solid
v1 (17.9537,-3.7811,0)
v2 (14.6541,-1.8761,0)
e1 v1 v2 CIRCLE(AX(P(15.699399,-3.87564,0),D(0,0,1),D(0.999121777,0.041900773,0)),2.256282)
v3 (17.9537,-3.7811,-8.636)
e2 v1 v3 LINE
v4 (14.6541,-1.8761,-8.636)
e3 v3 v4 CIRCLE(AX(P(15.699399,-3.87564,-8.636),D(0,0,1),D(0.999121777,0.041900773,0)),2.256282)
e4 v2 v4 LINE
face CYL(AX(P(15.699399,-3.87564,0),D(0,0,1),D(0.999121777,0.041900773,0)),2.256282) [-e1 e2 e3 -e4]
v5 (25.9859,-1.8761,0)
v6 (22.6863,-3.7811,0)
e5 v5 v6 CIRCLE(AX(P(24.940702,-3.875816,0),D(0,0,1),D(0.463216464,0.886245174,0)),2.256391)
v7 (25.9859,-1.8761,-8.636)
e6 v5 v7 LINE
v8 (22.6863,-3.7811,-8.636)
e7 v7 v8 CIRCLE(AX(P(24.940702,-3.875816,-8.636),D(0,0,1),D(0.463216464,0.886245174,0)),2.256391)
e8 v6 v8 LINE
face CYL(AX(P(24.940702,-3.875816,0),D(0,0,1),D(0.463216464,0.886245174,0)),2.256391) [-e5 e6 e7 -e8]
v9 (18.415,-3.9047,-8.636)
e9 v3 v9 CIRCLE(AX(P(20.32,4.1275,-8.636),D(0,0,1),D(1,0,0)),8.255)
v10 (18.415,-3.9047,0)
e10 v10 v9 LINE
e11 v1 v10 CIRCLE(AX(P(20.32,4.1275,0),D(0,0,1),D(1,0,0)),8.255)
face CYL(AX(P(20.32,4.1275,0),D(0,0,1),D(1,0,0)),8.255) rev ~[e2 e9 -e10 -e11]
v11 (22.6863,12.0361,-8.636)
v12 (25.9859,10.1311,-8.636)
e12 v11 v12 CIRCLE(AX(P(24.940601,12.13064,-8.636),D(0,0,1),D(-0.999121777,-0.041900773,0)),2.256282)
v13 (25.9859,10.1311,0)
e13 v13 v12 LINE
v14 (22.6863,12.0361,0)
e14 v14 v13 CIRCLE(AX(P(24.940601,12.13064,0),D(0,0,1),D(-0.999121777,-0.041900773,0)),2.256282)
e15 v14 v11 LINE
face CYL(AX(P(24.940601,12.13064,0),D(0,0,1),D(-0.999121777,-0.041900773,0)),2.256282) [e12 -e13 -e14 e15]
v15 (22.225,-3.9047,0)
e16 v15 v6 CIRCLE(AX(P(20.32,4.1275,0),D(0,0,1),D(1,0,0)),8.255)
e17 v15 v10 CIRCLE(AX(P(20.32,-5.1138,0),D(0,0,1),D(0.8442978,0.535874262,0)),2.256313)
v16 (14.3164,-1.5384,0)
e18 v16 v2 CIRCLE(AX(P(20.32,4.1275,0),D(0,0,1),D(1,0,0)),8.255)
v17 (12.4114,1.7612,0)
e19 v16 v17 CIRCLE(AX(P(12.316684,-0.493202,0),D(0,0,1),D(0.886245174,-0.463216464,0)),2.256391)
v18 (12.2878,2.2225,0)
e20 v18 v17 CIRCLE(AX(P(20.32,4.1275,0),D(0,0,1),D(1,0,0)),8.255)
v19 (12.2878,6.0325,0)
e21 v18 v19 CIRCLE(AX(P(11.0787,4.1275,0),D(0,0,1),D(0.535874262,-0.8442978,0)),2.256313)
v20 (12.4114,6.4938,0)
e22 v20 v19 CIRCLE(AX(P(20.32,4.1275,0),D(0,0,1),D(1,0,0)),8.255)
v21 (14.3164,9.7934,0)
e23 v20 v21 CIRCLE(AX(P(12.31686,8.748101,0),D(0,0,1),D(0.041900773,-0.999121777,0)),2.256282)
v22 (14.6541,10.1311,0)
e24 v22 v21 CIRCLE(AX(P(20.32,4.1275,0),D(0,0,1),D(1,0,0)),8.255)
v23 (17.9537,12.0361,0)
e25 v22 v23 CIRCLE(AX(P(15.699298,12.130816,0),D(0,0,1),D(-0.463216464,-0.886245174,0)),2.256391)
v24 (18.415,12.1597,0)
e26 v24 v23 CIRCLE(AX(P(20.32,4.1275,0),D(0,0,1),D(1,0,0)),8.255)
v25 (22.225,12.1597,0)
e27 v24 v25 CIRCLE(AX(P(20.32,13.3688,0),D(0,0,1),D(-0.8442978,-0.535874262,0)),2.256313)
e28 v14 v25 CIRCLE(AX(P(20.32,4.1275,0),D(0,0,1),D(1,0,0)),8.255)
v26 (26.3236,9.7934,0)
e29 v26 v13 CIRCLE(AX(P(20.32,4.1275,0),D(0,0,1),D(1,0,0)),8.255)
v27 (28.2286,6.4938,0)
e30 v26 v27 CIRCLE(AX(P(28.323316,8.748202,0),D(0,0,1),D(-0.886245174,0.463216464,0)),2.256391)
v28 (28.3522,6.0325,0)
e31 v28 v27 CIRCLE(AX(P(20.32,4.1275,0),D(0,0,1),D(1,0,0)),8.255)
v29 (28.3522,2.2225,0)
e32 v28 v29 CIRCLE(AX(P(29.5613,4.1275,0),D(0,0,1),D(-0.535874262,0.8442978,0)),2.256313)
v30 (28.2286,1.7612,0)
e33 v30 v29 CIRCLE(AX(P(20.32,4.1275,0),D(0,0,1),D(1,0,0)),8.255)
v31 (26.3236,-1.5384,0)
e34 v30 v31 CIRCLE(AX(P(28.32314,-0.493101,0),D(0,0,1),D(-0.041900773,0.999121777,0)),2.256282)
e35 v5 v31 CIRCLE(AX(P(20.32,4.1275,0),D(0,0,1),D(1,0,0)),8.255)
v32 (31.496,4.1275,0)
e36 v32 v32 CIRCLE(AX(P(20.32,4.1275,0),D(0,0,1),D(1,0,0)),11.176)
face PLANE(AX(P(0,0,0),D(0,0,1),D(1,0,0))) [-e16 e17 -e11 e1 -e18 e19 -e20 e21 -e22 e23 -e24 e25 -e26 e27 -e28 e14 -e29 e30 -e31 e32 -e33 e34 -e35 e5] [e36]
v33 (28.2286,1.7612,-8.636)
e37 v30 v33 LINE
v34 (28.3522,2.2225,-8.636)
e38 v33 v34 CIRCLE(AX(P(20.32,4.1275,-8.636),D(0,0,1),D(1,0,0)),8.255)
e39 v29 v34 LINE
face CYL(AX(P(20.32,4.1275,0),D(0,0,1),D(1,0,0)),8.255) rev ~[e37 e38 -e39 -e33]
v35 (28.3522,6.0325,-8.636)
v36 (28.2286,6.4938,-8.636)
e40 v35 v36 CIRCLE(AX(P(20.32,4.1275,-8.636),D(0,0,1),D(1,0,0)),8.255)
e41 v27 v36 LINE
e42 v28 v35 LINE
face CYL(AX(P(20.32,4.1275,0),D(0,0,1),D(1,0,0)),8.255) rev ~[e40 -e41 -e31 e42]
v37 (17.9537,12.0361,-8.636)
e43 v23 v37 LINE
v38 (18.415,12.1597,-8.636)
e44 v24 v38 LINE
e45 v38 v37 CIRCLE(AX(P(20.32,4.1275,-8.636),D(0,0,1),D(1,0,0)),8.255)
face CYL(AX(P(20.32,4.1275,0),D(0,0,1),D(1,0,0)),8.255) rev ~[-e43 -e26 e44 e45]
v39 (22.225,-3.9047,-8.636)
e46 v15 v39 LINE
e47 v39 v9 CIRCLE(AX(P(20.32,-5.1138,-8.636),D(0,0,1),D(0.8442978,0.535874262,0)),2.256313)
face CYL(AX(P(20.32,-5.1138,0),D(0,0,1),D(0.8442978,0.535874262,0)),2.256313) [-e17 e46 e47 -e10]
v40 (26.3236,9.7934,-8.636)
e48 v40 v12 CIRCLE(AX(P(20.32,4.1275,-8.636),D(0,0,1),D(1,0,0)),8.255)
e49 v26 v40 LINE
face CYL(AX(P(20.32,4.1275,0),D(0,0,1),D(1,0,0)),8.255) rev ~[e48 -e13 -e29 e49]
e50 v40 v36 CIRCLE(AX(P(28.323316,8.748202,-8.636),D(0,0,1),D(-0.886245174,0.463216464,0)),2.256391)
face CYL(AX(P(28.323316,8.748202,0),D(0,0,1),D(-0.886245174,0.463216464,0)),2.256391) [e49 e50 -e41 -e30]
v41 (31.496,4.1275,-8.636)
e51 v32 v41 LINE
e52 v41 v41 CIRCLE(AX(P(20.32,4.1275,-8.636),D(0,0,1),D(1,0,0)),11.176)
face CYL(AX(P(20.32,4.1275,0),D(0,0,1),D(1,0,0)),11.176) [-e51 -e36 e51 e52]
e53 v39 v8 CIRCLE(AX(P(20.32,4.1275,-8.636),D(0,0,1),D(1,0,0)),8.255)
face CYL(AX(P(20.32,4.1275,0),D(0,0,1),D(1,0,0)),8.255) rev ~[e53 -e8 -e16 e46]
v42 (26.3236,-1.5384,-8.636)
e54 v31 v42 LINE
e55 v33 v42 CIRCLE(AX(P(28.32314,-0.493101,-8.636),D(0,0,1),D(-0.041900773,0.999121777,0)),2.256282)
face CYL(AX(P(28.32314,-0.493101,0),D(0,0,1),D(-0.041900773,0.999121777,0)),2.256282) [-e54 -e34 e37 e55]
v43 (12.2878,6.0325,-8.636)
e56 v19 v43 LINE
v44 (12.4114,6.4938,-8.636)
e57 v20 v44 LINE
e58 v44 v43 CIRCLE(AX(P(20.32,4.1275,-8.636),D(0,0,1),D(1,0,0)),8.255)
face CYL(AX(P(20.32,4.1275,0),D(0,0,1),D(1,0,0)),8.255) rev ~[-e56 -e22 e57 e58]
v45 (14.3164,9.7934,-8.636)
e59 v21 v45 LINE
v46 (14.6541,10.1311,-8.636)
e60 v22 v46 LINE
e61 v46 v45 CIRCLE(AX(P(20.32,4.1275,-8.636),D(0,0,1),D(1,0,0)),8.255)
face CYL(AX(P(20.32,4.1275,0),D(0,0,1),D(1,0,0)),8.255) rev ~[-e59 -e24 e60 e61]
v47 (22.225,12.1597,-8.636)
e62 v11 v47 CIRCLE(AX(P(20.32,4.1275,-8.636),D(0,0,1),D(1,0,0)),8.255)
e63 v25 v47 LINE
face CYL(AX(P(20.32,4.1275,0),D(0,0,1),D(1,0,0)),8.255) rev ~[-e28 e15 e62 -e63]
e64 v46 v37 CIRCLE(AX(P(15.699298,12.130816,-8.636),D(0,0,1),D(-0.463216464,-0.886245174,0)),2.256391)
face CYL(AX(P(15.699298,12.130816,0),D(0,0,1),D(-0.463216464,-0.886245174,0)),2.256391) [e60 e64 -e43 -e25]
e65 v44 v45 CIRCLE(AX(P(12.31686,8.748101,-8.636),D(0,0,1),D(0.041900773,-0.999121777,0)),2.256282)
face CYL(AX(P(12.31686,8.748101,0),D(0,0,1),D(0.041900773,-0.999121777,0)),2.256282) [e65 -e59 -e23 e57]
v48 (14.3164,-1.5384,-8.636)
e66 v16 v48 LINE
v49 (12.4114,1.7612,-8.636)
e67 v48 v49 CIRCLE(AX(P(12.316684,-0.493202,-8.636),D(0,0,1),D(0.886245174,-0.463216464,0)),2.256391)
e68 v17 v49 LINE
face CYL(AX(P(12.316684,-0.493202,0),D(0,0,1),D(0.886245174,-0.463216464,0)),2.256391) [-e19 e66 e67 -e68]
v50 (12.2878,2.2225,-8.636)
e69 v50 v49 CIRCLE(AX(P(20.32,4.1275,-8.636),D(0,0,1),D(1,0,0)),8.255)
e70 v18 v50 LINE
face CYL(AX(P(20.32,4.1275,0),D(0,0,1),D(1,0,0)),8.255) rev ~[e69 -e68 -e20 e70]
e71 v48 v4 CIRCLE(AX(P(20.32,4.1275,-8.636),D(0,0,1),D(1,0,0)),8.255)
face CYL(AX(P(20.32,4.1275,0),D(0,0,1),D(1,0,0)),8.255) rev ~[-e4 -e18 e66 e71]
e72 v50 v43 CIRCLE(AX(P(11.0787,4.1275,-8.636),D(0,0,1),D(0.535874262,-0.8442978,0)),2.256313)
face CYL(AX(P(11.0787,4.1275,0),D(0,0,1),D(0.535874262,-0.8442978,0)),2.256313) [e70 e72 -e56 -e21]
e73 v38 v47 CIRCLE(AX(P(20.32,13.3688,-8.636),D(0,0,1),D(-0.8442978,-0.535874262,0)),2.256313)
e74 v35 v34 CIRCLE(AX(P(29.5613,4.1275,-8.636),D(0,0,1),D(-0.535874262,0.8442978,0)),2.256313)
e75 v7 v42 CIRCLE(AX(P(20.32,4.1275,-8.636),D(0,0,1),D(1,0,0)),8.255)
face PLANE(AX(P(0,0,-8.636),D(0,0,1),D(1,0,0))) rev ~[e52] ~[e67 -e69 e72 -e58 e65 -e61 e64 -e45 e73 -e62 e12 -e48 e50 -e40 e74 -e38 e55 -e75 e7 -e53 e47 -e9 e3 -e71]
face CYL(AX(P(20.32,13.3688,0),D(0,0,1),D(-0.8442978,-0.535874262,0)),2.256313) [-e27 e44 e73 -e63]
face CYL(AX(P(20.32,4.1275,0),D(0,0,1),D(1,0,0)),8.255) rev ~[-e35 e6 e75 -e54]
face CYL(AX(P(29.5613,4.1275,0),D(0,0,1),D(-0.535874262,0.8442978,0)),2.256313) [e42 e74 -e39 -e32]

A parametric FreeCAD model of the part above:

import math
import FreeCAD as App
import Part
import Sketcher
Q = App.Units.Quantity

doc = App.newDocument("Part")
body = doc.addObject("PartDesign::Body", "Body")

sketch1 = doc.addObject("Sketcher::SketchObject", "Sketch")
body.addObject(sketch1)
sketch1.AttachmentSupport = (doc.XY_Plane, [""])
sketch1.MapMode = "FlatFace"
sketch1.addGeometry(Part.Circle(App.Vector(20.32, 4.13, 0), App.Vector(0, 0, 1), 11.18), False)
sketch1.addGeometry(Part.ArcOfCircle(Part.Circle(App.Vector(20.32, 4.13, 0), App.Vector(0, 0, 1), 8.26), math.radians(13.34), math.radians(16.66)), False)
sketch1.addGeometry(Part.ArcOfCircle(Part.Circle(App.Vector(29.56, 4.13, 0), App.Vector(0, 0, 1), 2.26), math.radians(122), math.radians(238)), False)
sketch1.addGeometry(Part.ArcOfCircle(Part.Circle(App.Vector(20.32, 4.13, 0), App.Vector(0, 0, 1), 8.26), math.radians(-16.66), math.radians(-13.34)), False)
sketch1.addGeometry(Part.ArcOfCircle(Part.Circle(App.Vector(28.32, -0.49, 0), App.Vector(0, 0, 1), 2.26), math.radians(92), math.radians(208)), False)
sketch1.addGeometry(Part.ArcOfCircle(Part.Circle(App.Vector(20.32, 4.13, 0), App.Vector(0, 0, 1), 8.26), math.radians(-46.66), math.radians(-43.34)), False)
sketch1.addGeometry(Part.ArcOfCircle(Part.Circle(App.Vector(24.94, -3.88, 0), App.Vector(0, 0, 1), 2.26), math.radians(62), math.radians(178)), False)
sketch1.addGeometry(Part.ArcOfCircle(Part.Circle(App.Vector(20.32, 4.13, 0), App.Vector(0, 0, 1), 8.26), math.radians(-76.66), math.radians(-73.34)), False)
sketch1.addGeometry(Part.ArcOfCircle(Part.Circle(App.Vector(20.32, -5.11, 0), App.Vector(0, 0, 1), 2.26), math.radians(32), math.radians(148)), False)
sketch1.addGeometry(Part.ArcOfCircle(Part.Circle(App.Vector(20.32, 4.13, 0), App.Vector(0, 0, 1), 8.26), math.radians(-106.66), math.radians(-103.34)), False)
sketch1.addGeometry(Part.ArcOfCircle(Part.Circle(App.Vector(15.7, -3.88, 0), App.Vector(0, 0, 1), 2.26), math.radians(2), math.radians(118)), False)
sketch1.addGeometry(Part.ArcOfCircle(Part.Circle(App.Vector(20.32, 4.13, 0), App.Vector(0, 0, 1), 8.26), math.radians(-136.66), math.radians(-133.34)), False)
sketch1.addGeometry(Part.ArcOfCircle(Part.Circle(App.Vector(12.32, -0.49, 0), App.Vector(0, 0, 1), 2.26), math.radians(-28), math.radians(88)), False)
sketch1.addGeometry(Part.ArcOfCircle(Part.Circle(App.Vector(20.32, 4.13, 0), App.Vector(0, 0, 1), 8.26), math.radians(-166.66), math.radians(-163.34)), False)
sketch1.addGeometry(Part.ArcOfCircle(Part.Circle(App.Vector(11.08, 4.13, 0), App.Vector(0, 0, 1), 2.26), math.radians(-58), math.radians(58)), False)
sketch1.addGeometry(Part.ArcOfCircle(Part.Circle(App.Vector(20.32, 4.13, 0), App.Vector(0, 0, 1), 8.26), math.radians(163.34), math.radians(166.66)), False)
sketch1.addGeometry(Part.ArcOfCircle(Part.Circle(App.Vector(12.32, 8.75, 0), App.Vector(0, 0, 1), 2.26), math.radians(-88), math.radians(28)), False)
sketch1.addGeometry(Part.ArcOfCircle(Part.Circle(App.Vector(20.32, 4.13, 0), App.Vector(0, 0, 1), 8.26), math.radians(133.34), math.radians(136.66)), False)
sketch1.addGeometry(Part.ArcOfCircle(Part.Circle(App.Vector(15.7, 12.13, 0), App.Vector(0, 0, 1), 2.26), math.radians(-118), math.radians(-2)), False)
sketch1.addGeometry(Part.ArcOfCircle(Part.Circle(App.Vector(20.32, 4.13, 0), App.Vector(0, 0, 1), 8.26), math.radians(103.34), math.radians(106.66)), False)
sketch1.addGeometry(Part.ArcOfCircle(Part.Circle(App.Vector(20.32, 13.37, 0), App.Vector(0, 0, 1), 2.26), math.radians(-148), math.radians(-32)), False)
sketch1.addGeometry(Part.ArcOfCircle(Part.Circle(App.Vector(20.32, 4.13, 0), App.Vector(0, 0, 1), 8.26), math.radians(73.34), math.radians(76.66)), False)
sketch1.addGeometry(Part.ArcOfCircle(Part.Circle(App.Vector(24.94, 12.13, 0), App.Vector(0, 0, 1), 2.26), math.radians(-178), math.radians(-62)), False)
sketch1.addGeometry(Part.ArcOfCircle(Part.Circle(App.Vector(20.32, 4.13, 0), App.Vector(0, 0, 1), 8.26), math.radians(43.34), math.radians(46.66)), False)
sketch1.addGeometry(Part.ArcOfCircle(Part.Circle(App.Vector(28.32, 8.75, 0), App.Vector(0, 0, 1), 2.26), math.radians(152), math.radians(268)), False)
sketch1.addConstraint(Sketcher.Constraint("Coincident", 1, 1, 2, 1))
sketch1.addConstraint(Sketcher.Constraint("Coincident", 2, 2, 3, 2))
sketch1.addConstraint(Sketcher.Constraint("Coincident", 3, 1, 4, 1))
sketch1.addConstraint(Sketcher.Constraint("Coincident", 4, 2, 5, 2))
sketch1.addConstraint(Sketcher.Constraint("Coincident", 5, 1, 6, 1))
sketch1.addConstraint(Sketcher.Constraint("Coincident", 6, 2, 7, 2))
sketch1.addConstraint(Sketcher.Constraint("Coincident", 7, 1, 8, 1))
sketch1.addConstraint(Sketcher.Constraint("Coincident", 8, 2, 9, 2))
sketch1.addConstraint(Sketcher.Constraint("Coincident", 9, 1, 10, 1))
sketch1.addConstraint(Sketcher.Constraint("Coincident", 10, 2, 11, 2))
sketch1.addConstraint(Sketcher.Constraint("Coincident", 11, 1, 12, 1))
sketch1.addConstraint(Sketcher.Constraint("Coincident", 12, 2, 13, 2))
sketch1.addConstraint(Sketcher.Constraint("Coincident", 13, 1, 14, 1))
sketch1.addConstraint(Sketcher.Constraint("Coincident", 14, 2, 15, 2))
sketch1.addConstraint(Sketcher.Constraint("Coincident", 15, 1, 16, 1))
sketch1.addConstraint(Sketcher.Constraint("Coincident", 16, 2, 17, 2))
sketch1.addConstraint(Sketcher.Constraint("Coincident", 17, 1, 18, 1))
sketch1.addConstraint(Sketcher.Constraint("Coincident", 18, 2, 19, 2))
sketch1.addConstraint(Sketcher.Constraint("Coincident", 19, 1, 20, 1))
sketch1.addConstraint(Sketcher.Constraint("Coincident", 20, 2, 21, 2))
sketch1.addConstraint(Sketcher.Constraint("Coincident", 21, 1, 22, 1))
sketch1.addConstraint(Sketcher.Constraint("Coincident", 22, 2, 23, 2))
sketch1.addConstraint(Sketcher.Constraint("Coincident", 23, 1, 24, 1))
sketch1.addConstraint(Sketcher.Constraint("Coincident", 24, 2, 1, 2))
sketch1.addConstraint(Sketcher.Constraint("Coincident", 1, 3, 0, 3))
sketch1.addConstraint(Sketcher.Constraint("Coincident", 3, 3, 0, 3))
sketch1.addConstraint(Sketcher.Constraint("Coincident", 5, 3, 0, 3))
sketch1.addConstraint(Sketcher.Constraint("Coincident", 7, 3, 0, 3))
sketch1.addConstraint(Sketcher.Constraint("Coincident", 9, 3, 0, 3))
sketch1.addConstraint(Sketcher.Constraint("Coincident", 11, 3, 0, 3))
sketch1.addConstraint(Sketcher.Constraint("Coincident", 13, 3, 0, 3))
sketch1.addConstraint(Sketcher.Constraint("Coincident", 15, 3, 0, 3))
sketch1.addConstraint(Sketcher.Constraint("Coincident", 17, 3, 0, 3))
sketch1.addConstraint(Sketcher.Constraint("Coincident", 19, 3, 0, 3))
sketch1.addConstraint(Sketcher.Constraint("Coincident", 21, 3, 0, 3))
sketch1.addConstraint(Sketcher.Constraint("Coincident", 23, 3, 0, 3))
sketch1.addConstraint(Sketcher.Constraint("Equal", 1, 3))
sketch1.addConstraint(Sketcher.Constraint("Equal", 2, 4))
sketch1.addConstraint(Sketcher.Constraint("Equal", 3, 5))
sketch1.addConstraint(Sketcher.Constraint("Equal", 4, 6))
sketch1.addConstraint(Sketcher.Constraint("Equal", 5, 7))
sketch1.addConstraint(Sketcher.Constraint("Equal", 6, 8))
sketch1.addConstraint(Sketcher.Constraint("Equal", 7, 9))
sketch1.addConstraint(Sketcher.Constraint("Equal", 8, 10))
sketch1.addConstraint(Sketcher.Constraint("Equal", 9, 11))
sketch1.addConstraint(Sketcher.Constraint("Equal", 10, 12))
sketch1.addConstraint(Sketcher.Constraint("Equal", 11, 13))
sketch1.addConstraint(Sketcher.Constraint("Equal", 12, 14))
sketch1.addConstraint(Sketcher.Constraint("Equal", 13, 15))
sketch1.addConstraint(Sketcher.Constraint("Equal", 14, 16))
sketch1.addConstraint(Sketcher.Constraint("Equal", 15, 17))
sketch1.addConstraint(Sketcher.Constraint("Equal", 16, 18))
sketch1.addConstraint(Sketcher.Constraint("Equal", 17, 19))
sketch1.addConstraint(Sketcher.Constraint("Equal", 18, 20))
sketch1.addConstraint(Sketcher.Constraint("Equal", 19, 21))
sketch1.addConstraint(Sketcher.Constraint("Equal", 20, 22))
sketch1.addConstraint(Sketcher.Constraint("Equal", 21, 23))
sketch1.addConstraint(Sketcher.Constraint("Equal", 22, 24))
sketch1.addConstraint(Sketcher.Constraint("Horizontal", 1, 3, 2, 3))
sketch1.addConstraint(Sketcher.Constraint("Horizontal", 6, 3, 10, 3))
sketch1.addConstraint(Sketcher.Constraint("Horizontal", 4, 3, 12, 3))
sketch1.addConstraint(Sketcher.Constraint("Horizontal", 13, 3, 14, 3))
sketch1.addConstraint(Sketcher.Constraint("Horizontal", 18, 3, 22, 3))
sketch1.addConstraint(Sketcher.Constraint("Horizontal", 16, 3, 24, 3))
sketch1.addConstraint(Sketcher.Constraint("Horizontal", 7, 1, 8, 2))
sketch1.addConstraint(Sketcher.Constraint("Horizontal", 6, 2, 9, 1))
sketch1.addConstraint(Sketcher.Constraint("Horizontal", 4, 2, 11, 1))
sketch1.addConstraint(Sketcher.Constraint("Horizontal", 2, 2, 13, 1))
sketch1.addConstraint(Sketcher.Constraint("Horizontal", 19, 1, 20, 2))
sketch1.addConstraint(Sketcher.Constraint("Horizontal", 18, 2, 21, 1))
sketch1.addConstraint(Sketcher.Constraint("Horizontal", 16, 2, 23, 1))
sketch1.addConstraint(Sketcher.Constraint("Vertical", 12, 3, 16, 3))
sketch1.addConstraint(Sketcher.Constraint("Vertical", 10, 3, 18, 3))
sketch1.addConstraint(Sketcher.Constraint("Vertical", 12, 2, 15, 1))
sketch1.addConstraint(Sketcher.Constraint("Vertical", 10, 2, 17, 1))
sketch1.addConstraint(Sketcher.Constraint("Vertical", 8, 2, 19, 1))
sketch1.addConstraint(Sketcher.Constraint("Diameter", 0, Q("0.88 in")))
sketch1.addConstraint(Sketcher.Constraint("DistanceY", 2, 2, 1, 1, Q("0.15 in")))
sketch1.addConstraint(Sketcher.Constraint("DistanceX", 8, 2, 7, 1, Q("0.15 in")))
sketch1.addConstraint(Sketcher.Constraint("Radius", 1, Q("0.325 in")))
sketch1.addConstraint(Sketcher.Constraint("DistanceX", -1, 1, 0, 3, Q("0.8 in")))
sketch1.addConstraint(Sketcher.Constraint("Radius", 2, Q("2.2563 mm")))
sketch1.addConstraint(Sketcher.Constraint("DistanceX", 4, 2, 3, 1, Q("0.075 in")))
sketch1.addConstraint(Sketcher.Constraint("DistanceY", 6, 2, 5, 1, Q("0.075 in")))
sketch1.addConstraint(Sketcher.Constraint("DistanceY", -1, 1, 0, 3, Q("0.1625 in")))
sketch1.addConstraint(Sketcher.Constraint("DistanceX", 22, 3, 1, 1, Q("0.1343 in")))
sketch1.addConstraint(Sketcher.Constraint("DistanceY", 4, 2, 3, 1, Q("0.1299 in")))
pad1 = doc.addObject("PartDesign::Pad", "Pad")
body.addObject(pad1)
pad1.Profile = sketch1
pad1.Length = Q("0.34 in")
pad1.Reversed = True

doc.recompute()
